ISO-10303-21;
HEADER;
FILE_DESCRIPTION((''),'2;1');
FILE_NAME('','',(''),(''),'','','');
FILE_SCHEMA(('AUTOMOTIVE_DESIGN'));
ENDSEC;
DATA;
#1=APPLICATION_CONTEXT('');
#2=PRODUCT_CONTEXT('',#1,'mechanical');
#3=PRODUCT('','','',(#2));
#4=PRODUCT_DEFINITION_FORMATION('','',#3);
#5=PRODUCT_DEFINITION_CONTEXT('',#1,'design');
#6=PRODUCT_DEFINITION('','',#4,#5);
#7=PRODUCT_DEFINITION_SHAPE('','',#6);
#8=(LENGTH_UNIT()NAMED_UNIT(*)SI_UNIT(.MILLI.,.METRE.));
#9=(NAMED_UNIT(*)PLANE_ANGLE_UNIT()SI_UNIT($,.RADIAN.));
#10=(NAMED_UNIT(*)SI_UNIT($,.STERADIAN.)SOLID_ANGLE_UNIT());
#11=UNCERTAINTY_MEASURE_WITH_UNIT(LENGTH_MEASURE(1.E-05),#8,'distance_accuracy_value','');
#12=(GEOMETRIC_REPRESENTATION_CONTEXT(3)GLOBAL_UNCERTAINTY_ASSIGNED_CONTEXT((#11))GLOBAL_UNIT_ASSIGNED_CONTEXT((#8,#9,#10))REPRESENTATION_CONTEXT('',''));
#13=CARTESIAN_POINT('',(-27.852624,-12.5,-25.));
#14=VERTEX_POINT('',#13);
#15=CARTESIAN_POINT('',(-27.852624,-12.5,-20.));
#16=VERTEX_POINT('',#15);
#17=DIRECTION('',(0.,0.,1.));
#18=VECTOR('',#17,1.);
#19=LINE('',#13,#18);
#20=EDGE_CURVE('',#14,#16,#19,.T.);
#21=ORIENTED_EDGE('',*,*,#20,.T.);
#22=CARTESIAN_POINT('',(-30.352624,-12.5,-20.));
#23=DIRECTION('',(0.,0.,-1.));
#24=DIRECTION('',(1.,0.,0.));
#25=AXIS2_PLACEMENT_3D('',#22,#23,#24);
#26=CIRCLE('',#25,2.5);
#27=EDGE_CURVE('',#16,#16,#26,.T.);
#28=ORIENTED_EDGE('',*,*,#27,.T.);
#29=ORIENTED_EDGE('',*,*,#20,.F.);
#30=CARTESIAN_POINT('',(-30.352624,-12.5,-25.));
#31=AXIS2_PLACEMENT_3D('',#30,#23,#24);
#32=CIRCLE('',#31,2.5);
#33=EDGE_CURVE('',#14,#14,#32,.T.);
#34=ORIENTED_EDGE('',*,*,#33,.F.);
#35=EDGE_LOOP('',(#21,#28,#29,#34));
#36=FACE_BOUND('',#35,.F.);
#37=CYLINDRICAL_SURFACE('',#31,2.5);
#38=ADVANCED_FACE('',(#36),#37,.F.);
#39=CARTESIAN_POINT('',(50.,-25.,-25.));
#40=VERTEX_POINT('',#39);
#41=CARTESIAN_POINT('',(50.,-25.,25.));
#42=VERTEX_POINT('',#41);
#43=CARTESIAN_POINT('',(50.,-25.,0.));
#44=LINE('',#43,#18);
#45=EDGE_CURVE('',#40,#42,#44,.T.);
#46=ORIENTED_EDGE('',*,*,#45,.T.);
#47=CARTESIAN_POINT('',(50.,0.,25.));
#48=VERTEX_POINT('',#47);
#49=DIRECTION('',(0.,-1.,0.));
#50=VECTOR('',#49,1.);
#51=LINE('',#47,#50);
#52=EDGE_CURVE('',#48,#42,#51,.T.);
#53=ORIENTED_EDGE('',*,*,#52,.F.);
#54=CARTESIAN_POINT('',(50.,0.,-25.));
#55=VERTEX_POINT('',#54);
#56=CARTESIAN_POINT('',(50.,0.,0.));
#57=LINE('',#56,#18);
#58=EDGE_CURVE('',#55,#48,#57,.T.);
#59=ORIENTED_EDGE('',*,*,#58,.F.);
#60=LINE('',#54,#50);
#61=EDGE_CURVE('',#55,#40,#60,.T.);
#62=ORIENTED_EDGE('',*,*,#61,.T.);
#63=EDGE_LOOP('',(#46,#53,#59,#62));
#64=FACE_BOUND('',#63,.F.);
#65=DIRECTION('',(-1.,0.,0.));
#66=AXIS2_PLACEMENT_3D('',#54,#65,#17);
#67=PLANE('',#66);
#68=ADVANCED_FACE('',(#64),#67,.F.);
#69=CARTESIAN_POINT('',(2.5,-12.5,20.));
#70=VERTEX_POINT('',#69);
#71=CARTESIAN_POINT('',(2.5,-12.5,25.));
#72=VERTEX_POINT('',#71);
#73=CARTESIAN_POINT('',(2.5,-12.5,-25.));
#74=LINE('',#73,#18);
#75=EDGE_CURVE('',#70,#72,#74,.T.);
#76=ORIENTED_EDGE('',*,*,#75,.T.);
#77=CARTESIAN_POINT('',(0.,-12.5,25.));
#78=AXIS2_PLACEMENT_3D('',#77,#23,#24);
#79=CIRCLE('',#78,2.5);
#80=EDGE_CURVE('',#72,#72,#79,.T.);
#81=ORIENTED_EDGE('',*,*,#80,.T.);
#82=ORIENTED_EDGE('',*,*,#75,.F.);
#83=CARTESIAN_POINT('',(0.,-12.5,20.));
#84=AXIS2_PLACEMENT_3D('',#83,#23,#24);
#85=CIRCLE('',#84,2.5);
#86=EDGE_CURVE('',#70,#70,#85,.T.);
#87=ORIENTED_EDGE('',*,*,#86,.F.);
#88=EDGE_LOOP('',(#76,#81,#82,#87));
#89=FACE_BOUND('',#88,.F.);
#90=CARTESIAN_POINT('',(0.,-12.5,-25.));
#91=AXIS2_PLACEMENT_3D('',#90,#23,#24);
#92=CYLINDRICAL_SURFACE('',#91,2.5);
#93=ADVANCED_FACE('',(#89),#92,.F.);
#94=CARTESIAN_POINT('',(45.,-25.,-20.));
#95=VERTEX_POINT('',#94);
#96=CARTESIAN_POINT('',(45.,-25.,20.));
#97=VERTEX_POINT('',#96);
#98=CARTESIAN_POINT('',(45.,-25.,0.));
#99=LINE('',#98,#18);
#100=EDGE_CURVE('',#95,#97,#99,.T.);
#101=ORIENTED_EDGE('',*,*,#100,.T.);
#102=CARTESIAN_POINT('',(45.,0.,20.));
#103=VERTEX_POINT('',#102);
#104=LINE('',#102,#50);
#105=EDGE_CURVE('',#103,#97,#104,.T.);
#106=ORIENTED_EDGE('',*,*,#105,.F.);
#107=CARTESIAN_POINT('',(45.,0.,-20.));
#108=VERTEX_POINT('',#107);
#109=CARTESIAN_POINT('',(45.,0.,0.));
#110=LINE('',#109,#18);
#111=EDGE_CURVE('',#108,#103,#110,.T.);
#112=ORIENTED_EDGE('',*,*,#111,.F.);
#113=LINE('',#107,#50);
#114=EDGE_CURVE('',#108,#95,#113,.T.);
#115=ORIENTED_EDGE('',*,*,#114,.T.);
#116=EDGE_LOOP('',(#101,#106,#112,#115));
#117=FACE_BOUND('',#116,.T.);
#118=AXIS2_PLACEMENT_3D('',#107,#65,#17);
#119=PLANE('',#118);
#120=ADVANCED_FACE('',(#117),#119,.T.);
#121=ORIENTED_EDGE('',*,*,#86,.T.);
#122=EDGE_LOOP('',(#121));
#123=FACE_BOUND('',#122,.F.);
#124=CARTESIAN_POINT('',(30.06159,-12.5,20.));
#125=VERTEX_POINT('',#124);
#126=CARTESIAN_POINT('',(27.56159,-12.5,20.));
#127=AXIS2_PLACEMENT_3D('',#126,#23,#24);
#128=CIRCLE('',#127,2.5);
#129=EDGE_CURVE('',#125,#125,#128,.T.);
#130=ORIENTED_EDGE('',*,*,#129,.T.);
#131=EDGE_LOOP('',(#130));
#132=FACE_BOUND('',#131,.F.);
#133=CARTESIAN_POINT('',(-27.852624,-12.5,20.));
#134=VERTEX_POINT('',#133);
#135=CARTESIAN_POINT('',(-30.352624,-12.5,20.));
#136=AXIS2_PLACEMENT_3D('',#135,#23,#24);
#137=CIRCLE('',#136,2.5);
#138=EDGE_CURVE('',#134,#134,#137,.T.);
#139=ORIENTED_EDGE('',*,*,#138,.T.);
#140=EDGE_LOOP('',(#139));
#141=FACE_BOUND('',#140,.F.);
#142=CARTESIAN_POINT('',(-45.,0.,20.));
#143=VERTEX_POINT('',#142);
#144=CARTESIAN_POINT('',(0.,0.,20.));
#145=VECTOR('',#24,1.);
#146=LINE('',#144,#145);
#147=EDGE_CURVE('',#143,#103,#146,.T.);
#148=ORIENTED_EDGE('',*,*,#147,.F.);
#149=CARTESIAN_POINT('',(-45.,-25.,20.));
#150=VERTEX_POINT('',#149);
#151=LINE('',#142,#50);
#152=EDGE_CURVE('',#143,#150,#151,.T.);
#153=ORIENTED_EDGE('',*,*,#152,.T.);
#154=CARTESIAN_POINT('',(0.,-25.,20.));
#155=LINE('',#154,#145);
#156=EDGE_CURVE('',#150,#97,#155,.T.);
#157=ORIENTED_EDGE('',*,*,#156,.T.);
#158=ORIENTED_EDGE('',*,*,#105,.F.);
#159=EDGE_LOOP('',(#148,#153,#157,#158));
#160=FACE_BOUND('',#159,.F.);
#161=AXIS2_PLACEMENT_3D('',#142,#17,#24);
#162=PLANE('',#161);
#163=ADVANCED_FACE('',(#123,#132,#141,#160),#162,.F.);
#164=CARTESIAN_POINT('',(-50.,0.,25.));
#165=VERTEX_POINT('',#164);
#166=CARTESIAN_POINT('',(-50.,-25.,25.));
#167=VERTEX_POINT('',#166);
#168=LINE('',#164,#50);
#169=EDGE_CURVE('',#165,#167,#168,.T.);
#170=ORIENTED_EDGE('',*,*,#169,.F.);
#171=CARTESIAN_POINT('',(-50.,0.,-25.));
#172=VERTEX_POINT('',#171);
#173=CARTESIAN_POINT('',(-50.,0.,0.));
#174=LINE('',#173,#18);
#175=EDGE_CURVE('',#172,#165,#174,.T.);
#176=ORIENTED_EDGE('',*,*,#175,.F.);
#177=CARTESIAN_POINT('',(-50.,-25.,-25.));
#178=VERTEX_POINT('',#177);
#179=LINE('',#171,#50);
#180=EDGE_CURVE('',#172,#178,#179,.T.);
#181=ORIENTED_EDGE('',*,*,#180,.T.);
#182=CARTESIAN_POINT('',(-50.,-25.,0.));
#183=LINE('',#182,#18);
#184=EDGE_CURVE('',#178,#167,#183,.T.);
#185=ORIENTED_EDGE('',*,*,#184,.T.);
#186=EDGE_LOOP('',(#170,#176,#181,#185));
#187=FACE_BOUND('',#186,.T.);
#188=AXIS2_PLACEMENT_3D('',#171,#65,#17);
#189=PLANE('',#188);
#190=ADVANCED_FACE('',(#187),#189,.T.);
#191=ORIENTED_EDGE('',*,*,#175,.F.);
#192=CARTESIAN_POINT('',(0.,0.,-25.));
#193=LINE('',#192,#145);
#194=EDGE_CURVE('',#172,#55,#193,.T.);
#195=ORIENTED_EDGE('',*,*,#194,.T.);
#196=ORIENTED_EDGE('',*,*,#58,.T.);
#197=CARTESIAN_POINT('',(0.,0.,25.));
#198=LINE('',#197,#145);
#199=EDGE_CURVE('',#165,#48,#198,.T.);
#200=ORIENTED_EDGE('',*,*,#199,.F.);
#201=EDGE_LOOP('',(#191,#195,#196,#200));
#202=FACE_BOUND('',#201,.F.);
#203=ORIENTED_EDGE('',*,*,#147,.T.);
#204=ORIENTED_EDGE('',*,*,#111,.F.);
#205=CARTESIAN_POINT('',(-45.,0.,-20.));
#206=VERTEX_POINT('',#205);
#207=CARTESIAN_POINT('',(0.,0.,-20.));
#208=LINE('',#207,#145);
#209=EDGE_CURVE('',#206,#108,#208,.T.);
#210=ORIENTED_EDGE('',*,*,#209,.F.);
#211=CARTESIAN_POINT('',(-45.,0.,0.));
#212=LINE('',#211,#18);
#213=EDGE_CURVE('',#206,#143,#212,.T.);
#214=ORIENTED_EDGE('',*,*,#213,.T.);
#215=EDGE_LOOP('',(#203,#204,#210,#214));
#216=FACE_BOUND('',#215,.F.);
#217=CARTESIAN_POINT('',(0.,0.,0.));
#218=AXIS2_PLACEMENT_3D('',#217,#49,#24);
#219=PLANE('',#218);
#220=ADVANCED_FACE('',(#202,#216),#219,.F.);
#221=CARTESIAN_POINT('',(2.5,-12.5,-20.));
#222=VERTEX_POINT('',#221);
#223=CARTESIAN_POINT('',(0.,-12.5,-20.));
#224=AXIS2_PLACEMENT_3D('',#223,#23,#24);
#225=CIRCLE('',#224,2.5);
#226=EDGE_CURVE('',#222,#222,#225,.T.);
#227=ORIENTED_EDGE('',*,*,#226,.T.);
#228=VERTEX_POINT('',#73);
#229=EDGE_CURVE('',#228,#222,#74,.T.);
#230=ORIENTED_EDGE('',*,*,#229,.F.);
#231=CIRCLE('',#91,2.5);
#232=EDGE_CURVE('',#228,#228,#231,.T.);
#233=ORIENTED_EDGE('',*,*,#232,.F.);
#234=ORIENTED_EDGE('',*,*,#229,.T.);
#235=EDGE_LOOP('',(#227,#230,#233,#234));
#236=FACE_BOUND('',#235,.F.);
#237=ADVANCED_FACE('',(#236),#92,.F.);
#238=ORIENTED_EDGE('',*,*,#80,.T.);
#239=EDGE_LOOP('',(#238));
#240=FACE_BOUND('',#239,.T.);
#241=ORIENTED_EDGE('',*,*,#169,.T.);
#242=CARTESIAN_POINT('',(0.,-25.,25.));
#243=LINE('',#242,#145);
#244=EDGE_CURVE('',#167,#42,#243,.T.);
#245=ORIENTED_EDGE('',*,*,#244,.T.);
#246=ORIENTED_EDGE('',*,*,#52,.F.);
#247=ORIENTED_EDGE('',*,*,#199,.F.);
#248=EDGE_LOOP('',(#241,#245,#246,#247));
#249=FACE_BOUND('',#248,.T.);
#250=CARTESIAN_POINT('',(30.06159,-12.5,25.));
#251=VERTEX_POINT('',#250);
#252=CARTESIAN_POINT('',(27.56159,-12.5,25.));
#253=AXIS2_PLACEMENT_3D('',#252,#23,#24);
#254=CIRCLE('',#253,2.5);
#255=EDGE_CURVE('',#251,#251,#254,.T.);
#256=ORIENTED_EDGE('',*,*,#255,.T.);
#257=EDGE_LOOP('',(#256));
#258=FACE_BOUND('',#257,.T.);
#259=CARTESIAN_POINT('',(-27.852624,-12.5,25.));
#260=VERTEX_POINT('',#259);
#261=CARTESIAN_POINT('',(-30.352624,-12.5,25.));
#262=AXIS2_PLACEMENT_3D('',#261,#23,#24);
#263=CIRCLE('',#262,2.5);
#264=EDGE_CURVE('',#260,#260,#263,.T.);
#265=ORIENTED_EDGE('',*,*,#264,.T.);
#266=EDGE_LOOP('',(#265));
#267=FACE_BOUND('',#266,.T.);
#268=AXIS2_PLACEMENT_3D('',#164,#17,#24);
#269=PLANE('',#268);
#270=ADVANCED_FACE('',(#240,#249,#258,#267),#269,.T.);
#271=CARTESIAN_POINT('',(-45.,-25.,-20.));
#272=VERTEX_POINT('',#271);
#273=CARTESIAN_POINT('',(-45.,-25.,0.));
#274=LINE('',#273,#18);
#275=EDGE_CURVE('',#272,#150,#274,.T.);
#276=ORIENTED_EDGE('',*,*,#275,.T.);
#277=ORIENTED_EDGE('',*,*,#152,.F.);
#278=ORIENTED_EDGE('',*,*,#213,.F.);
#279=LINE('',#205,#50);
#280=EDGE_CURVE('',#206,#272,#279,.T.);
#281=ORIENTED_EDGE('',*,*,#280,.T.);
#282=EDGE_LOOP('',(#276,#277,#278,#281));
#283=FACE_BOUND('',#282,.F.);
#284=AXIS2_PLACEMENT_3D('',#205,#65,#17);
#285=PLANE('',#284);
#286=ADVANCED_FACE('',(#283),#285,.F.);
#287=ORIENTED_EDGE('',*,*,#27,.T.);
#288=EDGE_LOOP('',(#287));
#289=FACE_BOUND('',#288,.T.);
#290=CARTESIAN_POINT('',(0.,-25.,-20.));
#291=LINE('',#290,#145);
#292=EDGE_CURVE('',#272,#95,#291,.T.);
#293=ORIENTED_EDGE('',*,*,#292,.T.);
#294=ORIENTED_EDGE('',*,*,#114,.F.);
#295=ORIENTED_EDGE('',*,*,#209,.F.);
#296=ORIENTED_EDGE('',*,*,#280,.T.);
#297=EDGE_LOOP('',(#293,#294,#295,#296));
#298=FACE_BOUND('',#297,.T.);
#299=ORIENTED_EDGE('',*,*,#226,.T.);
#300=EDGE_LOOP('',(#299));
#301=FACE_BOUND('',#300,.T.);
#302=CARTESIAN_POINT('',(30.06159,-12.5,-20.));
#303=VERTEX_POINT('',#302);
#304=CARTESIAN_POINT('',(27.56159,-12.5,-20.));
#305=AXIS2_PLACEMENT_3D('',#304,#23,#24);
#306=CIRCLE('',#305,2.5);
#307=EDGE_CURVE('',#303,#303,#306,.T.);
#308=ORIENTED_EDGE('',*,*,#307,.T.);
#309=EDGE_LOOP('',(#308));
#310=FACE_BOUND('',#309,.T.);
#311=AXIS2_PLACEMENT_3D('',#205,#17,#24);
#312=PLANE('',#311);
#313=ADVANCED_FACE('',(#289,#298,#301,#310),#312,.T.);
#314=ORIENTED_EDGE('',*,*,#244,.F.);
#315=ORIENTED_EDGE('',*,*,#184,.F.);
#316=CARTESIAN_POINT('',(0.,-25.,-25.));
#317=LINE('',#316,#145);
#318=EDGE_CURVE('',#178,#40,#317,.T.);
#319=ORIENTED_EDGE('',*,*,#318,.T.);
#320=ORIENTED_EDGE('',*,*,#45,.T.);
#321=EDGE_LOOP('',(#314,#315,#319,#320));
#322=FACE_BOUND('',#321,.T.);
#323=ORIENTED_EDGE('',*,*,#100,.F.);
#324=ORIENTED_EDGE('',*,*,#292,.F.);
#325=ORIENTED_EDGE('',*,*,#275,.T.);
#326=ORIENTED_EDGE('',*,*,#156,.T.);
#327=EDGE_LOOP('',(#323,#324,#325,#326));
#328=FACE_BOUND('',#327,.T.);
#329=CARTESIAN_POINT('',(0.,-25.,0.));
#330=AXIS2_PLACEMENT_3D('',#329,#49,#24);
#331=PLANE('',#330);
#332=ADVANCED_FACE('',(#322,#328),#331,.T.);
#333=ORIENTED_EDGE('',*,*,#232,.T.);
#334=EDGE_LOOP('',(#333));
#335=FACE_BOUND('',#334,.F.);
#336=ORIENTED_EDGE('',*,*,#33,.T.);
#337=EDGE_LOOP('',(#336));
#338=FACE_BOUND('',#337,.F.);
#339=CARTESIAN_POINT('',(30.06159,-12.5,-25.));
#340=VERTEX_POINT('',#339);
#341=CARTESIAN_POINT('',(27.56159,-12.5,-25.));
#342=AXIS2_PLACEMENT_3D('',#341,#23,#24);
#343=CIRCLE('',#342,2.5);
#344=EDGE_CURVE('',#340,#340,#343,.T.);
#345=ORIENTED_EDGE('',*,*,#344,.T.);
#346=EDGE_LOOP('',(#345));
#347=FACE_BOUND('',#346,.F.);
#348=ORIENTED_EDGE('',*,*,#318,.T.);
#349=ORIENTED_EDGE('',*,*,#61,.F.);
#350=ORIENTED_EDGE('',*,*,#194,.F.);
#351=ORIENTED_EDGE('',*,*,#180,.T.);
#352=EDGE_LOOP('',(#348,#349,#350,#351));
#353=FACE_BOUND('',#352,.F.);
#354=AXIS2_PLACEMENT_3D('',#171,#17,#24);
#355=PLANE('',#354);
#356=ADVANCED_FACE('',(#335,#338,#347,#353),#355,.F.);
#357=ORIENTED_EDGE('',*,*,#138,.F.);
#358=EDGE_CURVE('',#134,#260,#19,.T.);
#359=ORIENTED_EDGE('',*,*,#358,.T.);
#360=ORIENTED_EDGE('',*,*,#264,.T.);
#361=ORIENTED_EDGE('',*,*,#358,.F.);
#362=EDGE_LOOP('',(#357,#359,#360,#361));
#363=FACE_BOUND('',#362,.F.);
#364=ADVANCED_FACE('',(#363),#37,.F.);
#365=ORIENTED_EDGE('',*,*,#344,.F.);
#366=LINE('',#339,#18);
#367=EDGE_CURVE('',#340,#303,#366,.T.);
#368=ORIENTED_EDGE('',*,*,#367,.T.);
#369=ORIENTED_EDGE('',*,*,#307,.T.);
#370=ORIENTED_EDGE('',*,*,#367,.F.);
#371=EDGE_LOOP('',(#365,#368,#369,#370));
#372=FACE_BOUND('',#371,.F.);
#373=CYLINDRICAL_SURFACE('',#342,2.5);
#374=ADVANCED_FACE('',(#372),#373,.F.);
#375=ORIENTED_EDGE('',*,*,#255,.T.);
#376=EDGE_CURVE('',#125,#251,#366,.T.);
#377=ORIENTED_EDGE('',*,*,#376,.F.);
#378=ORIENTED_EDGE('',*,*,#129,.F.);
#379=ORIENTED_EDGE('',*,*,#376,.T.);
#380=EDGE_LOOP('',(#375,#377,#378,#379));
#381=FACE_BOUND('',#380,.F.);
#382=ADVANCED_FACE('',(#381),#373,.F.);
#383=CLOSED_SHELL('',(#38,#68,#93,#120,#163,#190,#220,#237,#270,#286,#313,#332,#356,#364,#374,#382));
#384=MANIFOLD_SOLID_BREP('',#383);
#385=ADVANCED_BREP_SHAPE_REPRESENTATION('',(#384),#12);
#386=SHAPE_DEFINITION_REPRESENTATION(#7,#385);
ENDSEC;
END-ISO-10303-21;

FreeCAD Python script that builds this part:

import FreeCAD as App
import Part
import Sketcher

V = App.Vector

doc = App.newDocument("Part")
body = doc.addObject("PartDesign::Body", "Body")

# Sketch on XZ plane
sketch1 = body.newObject("Sketcher::SketchObject", "Sketch")
sketch1.AttachmentSupport = (doc.getObject("XZ_Plane"), [""])
sketch1.MapMode = "FlatFace"
sketch1.addGeometry(Part.LineSegment(V(-50, 25, 0), V(-50, -25, 0)), False)
sketch1.addGeometry(Part.LineSegment(V(-50, -25, 0), V(50, -25, 0)), False)
sketch1.addGeometry(Part.LineSegment(V(50, -25, 0), V(50, 25, 0)), False)
sketch1.addGeometry(Part.LineSegment(V(50, 25, 0), V(-50, 25, 0)), False)
sketch1.addGeometry(Part.LineSegment(V(45, -20, 0), V(-45, -20, 0)), False)
sketch1.addGeometry(Part.LineSegment(V(-45, -20, 0), V(-45, 20, 0)), False)
sketch1.addGeometry(Part.LineSegment(V(-45, 20, 0), V(45, 20, 0)), False)
sketch1.addGeometry(Part.LineSegment(V(45, 20, 0), V(45, -20, 0)), False)
sketch1.addConstraint(Sketcher.Constraint("Coincident", 0, 2, 1, 1))
sketch1.addConstraint(Sketcher.Constraint("Coincident", 1, 2, 2, 1))
sketch1.addConstraint(Sketcher.Constraint("Coincident", 2, 2, 3, 1))
sketch1.addConstraint(Sketcher.Constraint("Coincident", 3, 2, 0, 1))
sketch1.addConstraint(Sketcher.Constraint("Coincident", 4, 2, 5, 1))
sketch1.addConstraint(Sketcher.Constraint("Coincident", 5, 2, 6, 1))
sketch1.addConstraint(Sketcher.Constraint("Coincident", 6, 2, 7, 1))
sketch1.addConstraint(Sketcher.Constraint("Coincident", 7, 2, 4, 1))
sketch1.addConstraint(Sketcher.Constraint("Vertical", 0))
sketch1.addConstraint(Sketcher.Constraint("Horizontal", 1))
sketch1.addConstraint(Sketcher.Constraint("Vertical", 2))
sketch1.addConstraint(Sketcher.Constraint("Horizontal", 3))
sketch1.addConstraint(Sketcher.Constraint("Horizontal", 4))
sketch1.addConstraint(Sketcher.Constraint("Vertical", 5))
sketch1.addConstraint(Sketcher.Constraint("Horizontal", 6))
sketch1.addConstraint(Sketcher.Constraint("Vertical", 7))
sketch1.addConstraint(Sketcher.Constraint("Symmetric", 0, 2, 2, 2, -1, 1))
sketch1.addConstraint(Sketcher.Constraint("Symmetric", 4, 2, 6, 2, -1, 1))
sketch1.addConstraint(Sketcher.Constraint("DistanceX", 1, 1, 1, 2, 100.0))
sketch1.addConstraint(Sketcher.Constraint("DistanceX", 4, 2, 4, 1, 90.0))
sketch1.addConstraint(Sketcher.Constraint("DistanceY", 0, 2, 0, 1, 50.0))
sketch1.addConstraint(Sketcher.Constraint("DistanceY", 5, 1, 5, 2, 40.0))
pad1 = body.newObject("PartDesign::Pad", "Pad")
pad1.Profile = sketch1
pad1.Length = 25

# Sketch on XY plane
sketch2 = body.newObject("Sketcher::SketchObject", "Sketch001")
sketch2.AttachmentSupport = (doc.getObject("XY_Plane"), [""])
sketch2.MapMode = "FlatFace"
sketch2.AttachmentOffset = App.Placement(V(0, 0, -25), App.Rotation())
sketch2.addGeometry(Part.Circle(V(0, -12.5, 0), V(0, 0, 1), 2.5), False)
sketch2.addGeometry(Part.Circle(V(-30.352624, -12.5, 0), V(0, 0, 1), 2.5), False)
sketch2.addGeometry(Part.Circle(V(27.56159, -12.5, 0), V(0, 0, 1), 2.5), False)
sketch2.addConstraint(Sketcher.Constraint("Equal", 0, 1))
sketch2.addConstraint(Sketcher.Constraint("Equal", 1, 2))
sketch2.addConstraint(Sketcher.Constraint("PointOnObject", 0, 3, -2))
sketch2.addConstraint(Sketcher.Constraint("Horizontal", 0, 3, 1, 3))
sketch2.addConstraint(Sketcher.Constraint("Horizontal", 1, 3, 2, 3))
sketch2.addConstraint(Sketcher.Constraint("Diameter", 0, 5.0))
sketch2.addConstraint(Sketcher.Constraint("DistanceY", 0, 3, -1, 1, 12.5))
sketch2.addConstraint(Sketcher.Constraint("DistanceX", -1, 1, 2, 3, 27.56159))
sketch2.addConstraint(Sketcher.Constraint("DistanceX", 1, 3, -1, 1, 30.352624))
pocket1 = body.newObject("PartDesign::Pocket", "Pocket")
pocket1.Profile = sketch2
pocket1.Type = "ThroughAll"
pocket1.Reversed = True

doc.recompute()
